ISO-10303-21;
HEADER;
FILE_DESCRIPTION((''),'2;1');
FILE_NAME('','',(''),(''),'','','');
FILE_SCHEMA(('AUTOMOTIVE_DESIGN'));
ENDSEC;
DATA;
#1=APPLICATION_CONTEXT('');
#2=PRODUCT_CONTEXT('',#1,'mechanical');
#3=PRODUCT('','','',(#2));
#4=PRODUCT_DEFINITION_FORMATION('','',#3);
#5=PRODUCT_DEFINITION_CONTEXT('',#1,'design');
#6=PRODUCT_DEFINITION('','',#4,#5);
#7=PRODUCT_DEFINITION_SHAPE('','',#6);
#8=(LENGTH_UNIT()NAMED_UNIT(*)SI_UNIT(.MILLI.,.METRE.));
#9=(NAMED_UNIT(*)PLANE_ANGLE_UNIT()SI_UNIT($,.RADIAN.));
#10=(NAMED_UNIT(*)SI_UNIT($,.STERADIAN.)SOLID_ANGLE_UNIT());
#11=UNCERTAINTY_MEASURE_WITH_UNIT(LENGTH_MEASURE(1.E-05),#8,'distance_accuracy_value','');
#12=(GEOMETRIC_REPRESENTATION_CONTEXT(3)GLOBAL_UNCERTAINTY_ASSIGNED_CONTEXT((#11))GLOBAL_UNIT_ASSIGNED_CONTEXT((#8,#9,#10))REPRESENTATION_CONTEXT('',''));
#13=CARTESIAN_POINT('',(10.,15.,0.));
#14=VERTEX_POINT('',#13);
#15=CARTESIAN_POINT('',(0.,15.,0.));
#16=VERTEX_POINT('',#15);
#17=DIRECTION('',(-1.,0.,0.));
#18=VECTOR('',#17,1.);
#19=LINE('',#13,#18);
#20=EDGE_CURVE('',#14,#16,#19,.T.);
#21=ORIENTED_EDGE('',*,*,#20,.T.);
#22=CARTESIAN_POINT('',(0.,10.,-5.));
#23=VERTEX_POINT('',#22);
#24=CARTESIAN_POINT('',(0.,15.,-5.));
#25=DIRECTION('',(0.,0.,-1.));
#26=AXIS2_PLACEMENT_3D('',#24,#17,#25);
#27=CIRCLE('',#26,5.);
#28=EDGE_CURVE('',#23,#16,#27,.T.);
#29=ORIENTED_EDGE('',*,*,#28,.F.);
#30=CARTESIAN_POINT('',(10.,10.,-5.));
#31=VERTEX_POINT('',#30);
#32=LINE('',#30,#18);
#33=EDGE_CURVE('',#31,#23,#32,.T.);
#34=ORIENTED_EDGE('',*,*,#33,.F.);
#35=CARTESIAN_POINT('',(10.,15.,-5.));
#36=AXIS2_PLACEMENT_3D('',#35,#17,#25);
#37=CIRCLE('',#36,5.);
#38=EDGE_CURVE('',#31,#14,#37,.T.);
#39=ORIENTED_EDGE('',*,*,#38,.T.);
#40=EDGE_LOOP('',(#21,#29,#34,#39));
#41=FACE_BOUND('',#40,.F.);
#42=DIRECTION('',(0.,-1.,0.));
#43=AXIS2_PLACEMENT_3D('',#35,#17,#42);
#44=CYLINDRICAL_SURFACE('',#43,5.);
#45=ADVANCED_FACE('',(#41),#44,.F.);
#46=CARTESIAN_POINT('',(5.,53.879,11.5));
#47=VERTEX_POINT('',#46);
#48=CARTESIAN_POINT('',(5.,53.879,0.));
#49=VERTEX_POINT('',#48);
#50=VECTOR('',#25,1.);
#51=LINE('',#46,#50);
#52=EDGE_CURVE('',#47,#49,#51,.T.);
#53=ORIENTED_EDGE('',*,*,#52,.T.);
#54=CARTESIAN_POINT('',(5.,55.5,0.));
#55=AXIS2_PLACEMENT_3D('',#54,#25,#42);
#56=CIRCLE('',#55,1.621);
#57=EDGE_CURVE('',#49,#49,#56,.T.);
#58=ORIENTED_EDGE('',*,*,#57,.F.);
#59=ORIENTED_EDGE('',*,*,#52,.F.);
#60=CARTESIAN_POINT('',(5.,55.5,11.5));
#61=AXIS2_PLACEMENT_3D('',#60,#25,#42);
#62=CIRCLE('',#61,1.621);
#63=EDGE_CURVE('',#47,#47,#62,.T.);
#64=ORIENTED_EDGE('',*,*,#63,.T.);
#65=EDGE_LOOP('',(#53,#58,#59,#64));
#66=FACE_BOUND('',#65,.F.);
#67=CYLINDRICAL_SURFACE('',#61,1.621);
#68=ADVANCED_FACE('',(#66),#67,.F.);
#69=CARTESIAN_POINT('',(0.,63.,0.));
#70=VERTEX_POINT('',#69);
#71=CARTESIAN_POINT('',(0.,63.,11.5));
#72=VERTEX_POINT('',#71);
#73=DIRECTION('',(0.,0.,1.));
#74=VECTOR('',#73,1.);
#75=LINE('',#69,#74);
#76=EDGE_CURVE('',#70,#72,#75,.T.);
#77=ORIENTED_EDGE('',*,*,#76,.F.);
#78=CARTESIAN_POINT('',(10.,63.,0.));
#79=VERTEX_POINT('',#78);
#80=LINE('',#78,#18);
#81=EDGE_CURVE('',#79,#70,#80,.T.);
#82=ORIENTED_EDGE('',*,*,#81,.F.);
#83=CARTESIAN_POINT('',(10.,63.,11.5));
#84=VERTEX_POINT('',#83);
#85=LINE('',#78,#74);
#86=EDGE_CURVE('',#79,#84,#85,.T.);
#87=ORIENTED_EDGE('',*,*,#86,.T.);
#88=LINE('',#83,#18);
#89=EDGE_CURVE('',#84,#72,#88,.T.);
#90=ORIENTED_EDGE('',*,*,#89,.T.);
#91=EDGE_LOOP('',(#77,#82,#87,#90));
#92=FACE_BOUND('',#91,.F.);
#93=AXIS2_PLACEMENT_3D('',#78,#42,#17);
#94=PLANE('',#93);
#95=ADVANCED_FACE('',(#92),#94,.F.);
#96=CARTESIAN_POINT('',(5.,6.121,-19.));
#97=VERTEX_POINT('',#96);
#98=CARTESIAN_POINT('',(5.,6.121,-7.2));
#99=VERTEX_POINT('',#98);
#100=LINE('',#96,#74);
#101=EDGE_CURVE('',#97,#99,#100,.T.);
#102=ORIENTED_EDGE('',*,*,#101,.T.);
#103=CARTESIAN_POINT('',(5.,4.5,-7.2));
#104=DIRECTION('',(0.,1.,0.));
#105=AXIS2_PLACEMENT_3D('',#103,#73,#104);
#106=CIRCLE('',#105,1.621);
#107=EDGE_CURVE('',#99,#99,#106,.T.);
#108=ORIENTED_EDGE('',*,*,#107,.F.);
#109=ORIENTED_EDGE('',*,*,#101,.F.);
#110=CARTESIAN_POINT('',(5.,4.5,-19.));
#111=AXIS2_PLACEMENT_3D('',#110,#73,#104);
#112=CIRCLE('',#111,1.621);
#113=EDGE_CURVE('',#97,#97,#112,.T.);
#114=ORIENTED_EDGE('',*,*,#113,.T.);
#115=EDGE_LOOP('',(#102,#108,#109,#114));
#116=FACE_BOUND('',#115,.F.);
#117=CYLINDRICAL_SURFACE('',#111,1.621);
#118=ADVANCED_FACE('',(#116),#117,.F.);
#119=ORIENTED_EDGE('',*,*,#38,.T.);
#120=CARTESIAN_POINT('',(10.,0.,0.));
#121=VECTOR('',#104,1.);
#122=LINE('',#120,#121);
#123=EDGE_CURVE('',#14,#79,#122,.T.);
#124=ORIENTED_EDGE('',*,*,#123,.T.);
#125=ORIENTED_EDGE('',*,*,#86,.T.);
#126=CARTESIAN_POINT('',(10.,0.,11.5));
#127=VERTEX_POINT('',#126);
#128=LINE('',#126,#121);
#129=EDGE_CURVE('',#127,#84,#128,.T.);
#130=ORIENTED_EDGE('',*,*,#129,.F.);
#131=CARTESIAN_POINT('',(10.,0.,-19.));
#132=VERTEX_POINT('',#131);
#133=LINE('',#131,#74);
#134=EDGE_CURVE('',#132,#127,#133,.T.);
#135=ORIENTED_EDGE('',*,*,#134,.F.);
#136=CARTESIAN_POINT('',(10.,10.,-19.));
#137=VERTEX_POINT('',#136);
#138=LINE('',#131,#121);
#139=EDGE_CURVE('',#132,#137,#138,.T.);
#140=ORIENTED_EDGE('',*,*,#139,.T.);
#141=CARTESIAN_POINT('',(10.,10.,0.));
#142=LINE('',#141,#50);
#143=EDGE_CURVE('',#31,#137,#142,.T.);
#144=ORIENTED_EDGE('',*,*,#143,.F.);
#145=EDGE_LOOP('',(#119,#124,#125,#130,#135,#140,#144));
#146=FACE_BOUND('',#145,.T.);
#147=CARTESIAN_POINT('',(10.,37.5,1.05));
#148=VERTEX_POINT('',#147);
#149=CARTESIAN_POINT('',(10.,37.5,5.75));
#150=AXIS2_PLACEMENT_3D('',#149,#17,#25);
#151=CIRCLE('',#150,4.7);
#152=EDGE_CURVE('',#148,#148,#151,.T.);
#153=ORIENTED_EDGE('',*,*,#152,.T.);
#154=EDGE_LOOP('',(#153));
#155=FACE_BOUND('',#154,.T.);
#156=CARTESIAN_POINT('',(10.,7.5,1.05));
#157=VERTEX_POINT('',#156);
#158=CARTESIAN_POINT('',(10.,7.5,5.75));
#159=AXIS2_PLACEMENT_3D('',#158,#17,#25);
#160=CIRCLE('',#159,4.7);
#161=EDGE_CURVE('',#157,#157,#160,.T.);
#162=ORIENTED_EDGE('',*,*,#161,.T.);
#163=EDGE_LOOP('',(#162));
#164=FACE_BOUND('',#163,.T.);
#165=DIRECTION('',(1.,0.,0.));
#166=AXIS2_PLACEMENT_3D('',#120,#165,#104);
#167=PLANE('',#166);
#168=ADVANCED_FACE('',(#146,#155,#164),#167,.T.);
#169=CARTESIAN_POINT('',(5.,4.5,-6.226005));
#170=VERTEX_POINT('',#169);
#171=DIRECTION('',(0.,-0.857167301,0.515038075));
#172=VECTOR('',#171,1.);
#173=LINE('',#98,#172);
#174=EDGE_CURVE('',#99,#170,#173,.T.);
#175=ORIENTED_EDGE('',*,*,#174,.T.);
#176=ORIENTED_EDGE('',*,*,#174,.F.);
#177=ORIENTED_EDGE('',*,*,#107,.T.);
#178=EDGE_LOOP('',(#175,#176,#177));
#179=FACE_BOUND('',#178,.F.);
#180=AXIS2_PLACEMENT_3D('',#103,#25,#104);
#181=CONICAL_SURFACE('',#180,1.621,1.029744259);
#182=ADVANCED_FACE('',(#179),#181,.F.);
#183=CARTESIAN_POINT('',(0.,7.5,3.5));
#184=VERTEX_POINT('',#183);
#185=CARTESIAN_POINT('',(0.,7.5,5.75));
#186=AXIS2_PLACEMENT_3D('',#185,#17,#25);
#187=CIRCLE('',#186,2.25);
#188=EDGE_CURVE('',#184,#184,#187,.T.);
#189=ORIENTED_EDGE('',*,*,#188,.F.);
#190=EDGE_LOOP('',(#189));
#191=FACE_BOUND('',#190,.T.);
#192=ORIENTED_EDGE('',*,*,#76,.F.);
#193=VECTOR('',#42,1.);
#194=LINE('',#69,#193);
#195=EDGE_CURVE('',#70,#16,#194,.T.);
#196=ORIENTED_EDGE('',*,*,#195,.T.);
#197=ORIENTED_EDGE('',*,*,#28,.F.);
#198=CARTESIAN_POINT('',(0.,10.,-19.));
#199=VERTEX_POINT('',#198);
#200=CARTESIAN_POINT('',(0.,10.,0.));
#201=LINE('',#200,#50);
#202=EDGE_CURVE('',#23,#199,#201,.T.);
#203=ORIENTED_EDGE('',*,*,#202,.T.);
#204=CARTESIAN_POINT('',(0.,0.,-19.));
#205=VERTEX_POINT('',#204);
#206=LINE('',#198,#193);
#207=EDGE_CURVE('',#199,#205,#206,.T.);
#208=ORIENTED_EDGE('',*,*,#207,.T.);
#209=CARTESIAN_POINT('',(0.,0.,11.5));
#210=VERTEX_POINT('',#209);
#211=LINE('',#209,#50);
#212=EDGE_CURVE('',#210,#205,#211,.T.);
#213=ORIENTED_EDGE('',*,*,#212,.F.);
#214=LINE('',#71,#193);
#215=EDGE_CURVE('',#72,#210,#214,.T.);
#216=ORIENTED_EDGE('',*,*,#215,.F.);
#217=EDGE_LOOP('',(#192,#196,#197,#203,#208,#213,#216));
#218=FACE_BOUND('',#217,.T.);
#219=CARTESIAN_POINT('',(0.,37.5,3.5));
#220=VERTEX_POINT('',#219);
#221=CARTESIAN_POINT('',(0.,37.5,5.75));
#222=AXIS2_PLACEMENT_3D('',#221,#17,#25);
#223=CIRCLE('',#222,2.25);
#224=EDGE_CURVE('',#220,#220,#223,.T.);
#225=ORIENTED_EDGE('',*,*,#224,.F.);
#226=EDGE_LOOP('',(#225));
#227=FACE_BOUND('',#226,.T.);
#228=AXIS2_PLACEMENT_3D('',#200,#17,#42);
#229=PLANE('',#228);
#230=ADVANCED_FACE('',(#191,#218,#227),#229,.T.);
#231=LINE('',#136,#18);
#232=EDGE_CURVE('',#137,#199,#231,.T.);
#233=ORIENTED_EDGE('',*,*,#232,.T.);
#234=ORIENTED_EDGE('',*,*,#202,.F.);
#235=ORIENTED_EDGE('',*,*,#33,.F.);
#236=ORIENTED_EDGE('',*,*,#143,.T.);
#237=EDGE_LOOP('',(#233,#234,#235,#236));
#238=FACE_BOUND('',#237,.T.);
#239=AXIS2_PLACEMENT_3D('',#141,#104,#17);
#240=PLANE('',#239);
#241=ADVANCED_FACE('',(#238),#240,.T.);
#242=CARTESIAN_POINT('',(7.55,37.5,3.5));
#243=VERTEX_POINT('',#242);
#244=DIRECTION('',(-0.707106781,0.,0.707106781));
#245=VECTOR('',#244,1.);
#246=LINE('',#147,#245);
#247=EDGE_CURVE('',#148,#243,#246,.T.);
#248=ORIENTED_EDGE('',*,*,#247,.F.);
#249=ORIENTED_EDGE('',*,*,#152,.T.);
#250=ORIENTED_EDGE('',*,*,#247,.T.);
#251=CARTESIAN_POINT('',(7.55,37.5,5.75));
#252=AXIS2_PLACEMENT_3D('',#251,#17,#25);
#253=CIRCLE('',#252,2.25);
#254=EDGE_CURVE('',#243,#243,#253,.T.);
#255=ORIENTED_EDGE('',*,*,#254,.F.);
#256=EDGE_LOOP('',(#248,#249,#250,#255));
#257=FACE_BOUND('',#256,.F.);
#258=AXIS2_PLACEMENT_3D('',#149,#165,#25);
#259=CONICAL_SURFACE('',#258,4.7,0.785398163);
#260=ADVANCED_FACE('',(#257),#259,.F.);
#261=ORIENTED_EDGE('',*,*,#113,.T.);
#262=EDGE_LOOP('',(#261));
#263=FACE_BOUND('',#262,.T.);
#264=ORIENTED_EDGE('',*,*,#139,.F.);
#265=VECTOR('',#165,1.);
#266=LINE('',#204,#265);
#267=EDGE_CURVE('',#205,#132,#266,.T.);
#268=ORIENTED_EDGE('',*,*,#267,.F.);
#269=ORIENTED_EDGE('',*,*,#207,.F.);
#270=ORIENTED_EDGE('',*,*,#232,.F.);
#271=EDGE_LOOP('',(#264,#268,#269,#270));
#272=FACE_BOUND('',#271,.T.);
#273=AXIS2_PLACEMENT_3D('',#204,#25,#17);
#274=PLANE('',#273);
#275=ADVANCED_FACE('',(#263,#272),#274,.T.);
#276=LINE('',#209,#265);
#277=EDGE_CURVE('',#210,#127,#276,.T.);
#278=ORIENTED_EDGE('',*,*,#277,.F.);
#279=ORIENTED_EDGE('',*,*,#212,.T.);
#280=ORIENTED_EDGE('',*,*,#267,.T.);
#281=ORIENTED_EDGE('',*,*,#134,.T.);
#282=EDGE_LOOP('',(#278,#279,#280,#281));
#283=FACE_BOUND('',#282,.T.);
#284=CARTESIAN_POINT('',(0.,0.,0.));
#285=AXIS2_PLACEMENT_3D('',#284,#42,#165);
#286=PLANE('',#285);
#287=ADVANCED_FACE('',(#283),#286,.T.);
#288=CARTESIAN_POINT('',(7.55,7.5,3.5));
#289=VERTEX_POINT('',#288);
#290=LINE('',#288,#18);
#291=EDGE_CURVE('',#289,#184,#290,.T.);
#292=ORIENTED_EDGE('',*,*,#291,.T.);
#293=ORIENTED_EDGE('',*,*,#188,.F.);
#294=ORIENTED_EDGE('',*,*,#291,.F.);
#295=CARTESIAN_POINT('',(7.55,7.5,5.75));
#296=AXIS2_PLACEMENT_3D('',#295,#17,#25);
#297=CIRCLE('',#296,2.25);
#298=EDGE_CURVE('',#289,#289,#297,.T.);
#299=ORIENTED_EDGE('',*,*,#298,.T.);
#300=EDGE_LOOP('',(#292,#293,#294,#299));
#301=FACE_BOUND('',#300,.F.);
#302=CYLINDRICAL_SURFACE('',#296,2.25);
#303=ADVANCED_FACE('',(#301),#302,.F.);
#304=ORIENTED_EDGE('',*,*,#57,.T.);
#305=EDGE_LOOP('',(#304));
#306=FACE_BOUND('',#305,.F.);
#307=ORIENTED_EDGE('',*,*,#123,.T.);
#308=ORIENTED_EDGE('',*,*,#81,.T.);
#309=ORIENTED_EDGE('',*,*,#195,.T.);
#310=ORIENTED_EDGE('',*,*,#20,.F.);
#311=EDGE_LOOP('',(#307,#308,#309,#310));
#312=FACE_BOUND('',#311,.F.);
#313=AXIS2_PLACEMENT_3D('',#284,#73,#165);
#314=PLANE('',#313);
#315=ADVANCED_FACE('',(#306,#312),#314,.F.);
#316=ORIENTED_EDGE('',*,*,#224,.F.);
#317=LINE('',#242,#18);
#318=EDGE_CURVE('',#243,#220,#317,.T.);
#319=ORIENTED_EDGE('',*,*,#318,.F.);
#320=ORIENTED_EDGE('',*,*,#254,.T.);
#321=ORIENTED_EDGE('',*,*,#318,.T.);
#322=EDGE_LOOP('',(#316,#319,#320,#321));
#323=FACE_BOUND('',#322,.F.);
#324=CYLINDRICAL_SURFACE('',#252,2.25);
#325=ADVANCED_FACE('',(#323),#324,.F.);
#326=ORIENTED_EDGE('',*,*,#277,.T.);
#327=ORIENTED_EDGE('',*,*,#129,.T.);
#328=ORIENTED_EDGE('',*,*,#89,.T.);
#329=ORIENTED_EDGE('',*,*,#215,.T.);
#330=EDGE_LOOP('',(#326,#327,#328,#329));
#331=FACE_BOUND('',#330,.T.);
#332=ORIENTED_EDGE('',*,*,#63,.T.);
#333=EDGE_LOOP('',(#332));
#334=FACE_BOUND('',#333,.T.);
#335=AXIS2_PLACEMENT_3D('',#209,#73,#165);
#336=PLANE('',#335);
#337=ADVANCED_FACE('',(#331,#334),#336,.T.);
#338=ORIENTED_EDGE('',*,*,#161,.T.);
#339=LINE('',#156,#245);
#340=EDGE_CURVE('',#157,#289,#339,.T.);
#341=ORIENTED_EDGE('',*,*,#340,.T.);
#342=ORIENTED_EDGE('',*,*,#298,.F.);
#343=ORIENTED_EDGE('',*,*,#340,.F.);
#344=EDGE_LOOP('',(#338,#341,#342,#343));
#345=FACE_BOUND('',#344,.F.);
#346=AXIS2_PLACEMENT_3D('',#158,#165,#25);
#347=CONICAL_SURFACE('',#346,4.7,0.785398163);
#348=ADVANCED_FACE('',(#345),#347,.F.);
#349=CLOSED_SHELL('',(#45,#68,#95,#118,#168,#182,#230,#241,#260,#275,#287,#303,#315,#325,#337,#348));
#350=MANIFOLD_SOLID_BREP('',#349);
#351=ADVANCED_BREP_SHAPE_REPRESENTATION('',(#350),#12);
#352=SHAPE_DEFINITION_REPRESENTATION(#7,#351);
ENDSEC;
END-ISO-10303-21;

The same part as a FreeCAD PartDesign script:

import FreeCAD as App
import Part
import Sketcher

V = App.Vector


def edges_at(feature, points):
    """Names of the edges that pass closest to the given points."""
    edges = feature.Shape.Edges
    near = lambda p: min(range(len(edges)), key=lambda i: edges[i].distToShape(Part.Vertex(*p))[0])
    return sorted({f"Edge{near(p) + 1}" for p in points})


def add_polygon(sketch, points):
    """Adds a closed chain of lines whose ends are joined by coincident constraints."""
    first, n = sketch.GeometryCount, len(points)
    for a, b in zip(points, points[1:] + points[:1]):
        sketch.addGeometry(Part.LineSegment(App.Vector(*a, 0), App.Vector(*b, 0)), False)
    for i in range(n):
        sketch.addConstraint(Sketcher.Constraint("Coincident", first + i, 2, first + (i + 1) % n, 1))

doc = App.newDocument("Part")
body = doc.addObject("PartDesign::Body", "Body")

# Sketch on XY plane
sketch1 = body.newObject("Sketcher::SketchObject", "Sketch")
sketch1.AttachmentSupport = (doc.getObject("XY_Plane"), [""])
sketch1.MapMode = "FlatFace"
add_polygon(sketch1, [(0, 63), (0, 0), (10, 0), (10, 63)])  # lines 0-3
sketch1.addConstraint(Sketcher.Constraint("Vertical", 0))
sketch1.addConstraint(Sketcher.Constraint("Horizontal", 1))
sketch1.addConstraint(Sketcher.Constraint("Vertical", 2))
sketch1.addConstraint(Sketcher.Constraint("Horizontal", 3))
sketch1.addConstraint(Sketcher.Constraint("Coincident", 0, 2, -1, 1))
sketch1.addConstraint(Sketcher.Constraint("DistanceX", 1, 1, 1, 2, 10.0))
sketch1.addConstraint(Sketcher.Constraint("DistanceY", 0, 2, 0, 1, 63.0))
pad1 = body.newObject("PartDesign::Pad", "Pad")
pad1.Profile = sketch1
pad1.Length = 11.5

# Sketch on XY plane
sketch2 = body.newObject("Sketcher::SketchObject", "Sketch001")
sketch2.AttachmentSupport = (doc.getObject("XY_Plane"), [""])
sketch2.MapMode = "FlatFace"
sketch2.AttachmentOffset = App.Placement(V(0, 0, 11.5), App.Rotation())
sketch2.addGeometry(Part.Circle(V(5, 55.5, 0), V(0, 0, 1), 1.6), False)
sketch2.addConstraint(Sketcher.Constraint("Diameter", 0, 3.242))
sketch2.addConstraint(Sketcher.Constraint("DistanceX", -1, 1, 0, 3, 5.0))
sketch2.addConstraint(Sketcher.Constraint("DistanceY", -1, 1, 0, 3, 55.5))
doc.recompute()
hole = body.newObject("PartDesign::Hole", "Hole")
hole.Profile = sketch2
hole.ThreadType = "None"
hole.Diameter = 3.242
hole.DepthType = "ThroughAll"

# Sketch on YZ plane
sketch3 = body.newObject("Sketcher::SketchObject", "Sketch002")
sketch3.AttachmentSupport = (doc.getObject("YZ_Plane"), [""])
sketch3.MapMode = "FlatFace"
sketch3.AttachmentOffset = App.Placement(V(0, 0, 10), App.Rotation())
sketch3.addGeometry(Part.Circle(V(37.5, 5.8, 0), V(0, 0, 1), 2.2), False)
sketch3.addGeometry(Part.Circle(V(7.5, 5.8, 0), V(0, 0, 1), 2.2), False)
sketch3.addConstraint(Sketcher.Constraint("Equal", 0, 1))
sketch3.addConstraint(Sketcher.Constraint("Horizontal", 0, 3, 1, 3))
sketch3.addConstraint(Sketcher.Constraint("Diameter", 0, 4.5))
sketch3.addConstraint(Sketcher.Constraint("DistanceX", 1, 3, 0, 3, 30.0))
sketch3.addConstraint(Sketcher.Constraint("DistanceX", -1, 1, 0, 3, 37.5))
sketch3.addConstraint(Sketcher.Constraint("DistanceY", -1, 1, 0, 3, 5.75))
doc.recompute()
hole2 = body.newObject("PartDesign::Hole", "Hole001")
hole2.Profile = sketch3
hole2.ThreadType = "None"
hole2.Diameter = 4.5
hole2.DepthType = "ThroughAll"
hole2.HoleCutType = "Countersink"
hole2.HoleCutDiameter = 9.4
hole2.HoleCutCountersinkAngle = 90

# Sketch on XY plane
sketch4 = body.newObject("Sketcher::SketchObject", "Sketch003")
sketch4.AttachmentSupport = (doc.getObject("XY_Plane"), [""])
sketch4.MapMode = "FlatFace"
add_polygon(sketch4, [(10, 0), (0, 0), (0, 10), (10, 10)])  # lines 0-3
sketch4.addConstraint(Sketcher.Constraint("Horizontal", 0))
sketch4.addConstraint(Sketcher.Constraint("Vertical", 1))
sketch4.addConstraint(Sketcher.Constraint("Horizontal", 2))
sketch4.addConstraint(Sketcher.Constraint("Vertical", 3))
sketch4.addConstraint(Sketcher.Constraint("Coincident", 0, 2, -1, 1))
sketch4.addConstraint(Sketcher.Constraint("Equal", 2, 1))
sketch4.addConstraint(Sketcher.Constraint("DistanceX", 0, 2, 0, 1, 10.0))
pad2 = body.newObject("PartDesign::Pad", "Pad001")
pad2.Profile = sketch4
pad2.Length = 19
pad2.Reversed = True

# Sketch on XY plane
sketch5 = body.newObject("Sketcher::SketchObject", "Sketch004")
sketch5.AttachmentSupport = (doc.getObject("XY_Plane"), [""])
sketch5.MapMode = "FlatFace"
sketch5.AttachmentOffset = App.Placement(V(0, 0, -19), App.Rotation())
sketch5.addGeometry(Part.Circle(V(5, 4.5, 0), V(0, 0, 1), 1.6), False)
sketch5.addConstraint(Sketcher.Constraint("Diameter", 0, 3.242))
sketch5.addConstraint(Sketcher.Constraint("DistanceX", -1, 1, 0, 3, 5.0))
sketch5.addConstraint(Sketcher.Constraint("DistanceY", -1, 1, 0, 3, 4.5))
doc.recompute()
hole3 = body.newObject("PartDesign::Hole", "Hole002")
hole3.Profile = sketch5
hole3.ThreadType = "None"
hole3.Diameter = 3.242
hole3.DepthType = "Dimension"
hole3.Depth = 11.8
hole3.DrillPoint = "Angled"
hole3.DrillPointAngle = 118
hole3.Reversed = True
doc.recompute()

fillet = body.newObject("PartDesign::Fillet", "Fillet")
fillet.Base = (hole3, edges_at(hole3, [(5, 10, 0)]))
fillet.Radius = 5

doc.recompute()
